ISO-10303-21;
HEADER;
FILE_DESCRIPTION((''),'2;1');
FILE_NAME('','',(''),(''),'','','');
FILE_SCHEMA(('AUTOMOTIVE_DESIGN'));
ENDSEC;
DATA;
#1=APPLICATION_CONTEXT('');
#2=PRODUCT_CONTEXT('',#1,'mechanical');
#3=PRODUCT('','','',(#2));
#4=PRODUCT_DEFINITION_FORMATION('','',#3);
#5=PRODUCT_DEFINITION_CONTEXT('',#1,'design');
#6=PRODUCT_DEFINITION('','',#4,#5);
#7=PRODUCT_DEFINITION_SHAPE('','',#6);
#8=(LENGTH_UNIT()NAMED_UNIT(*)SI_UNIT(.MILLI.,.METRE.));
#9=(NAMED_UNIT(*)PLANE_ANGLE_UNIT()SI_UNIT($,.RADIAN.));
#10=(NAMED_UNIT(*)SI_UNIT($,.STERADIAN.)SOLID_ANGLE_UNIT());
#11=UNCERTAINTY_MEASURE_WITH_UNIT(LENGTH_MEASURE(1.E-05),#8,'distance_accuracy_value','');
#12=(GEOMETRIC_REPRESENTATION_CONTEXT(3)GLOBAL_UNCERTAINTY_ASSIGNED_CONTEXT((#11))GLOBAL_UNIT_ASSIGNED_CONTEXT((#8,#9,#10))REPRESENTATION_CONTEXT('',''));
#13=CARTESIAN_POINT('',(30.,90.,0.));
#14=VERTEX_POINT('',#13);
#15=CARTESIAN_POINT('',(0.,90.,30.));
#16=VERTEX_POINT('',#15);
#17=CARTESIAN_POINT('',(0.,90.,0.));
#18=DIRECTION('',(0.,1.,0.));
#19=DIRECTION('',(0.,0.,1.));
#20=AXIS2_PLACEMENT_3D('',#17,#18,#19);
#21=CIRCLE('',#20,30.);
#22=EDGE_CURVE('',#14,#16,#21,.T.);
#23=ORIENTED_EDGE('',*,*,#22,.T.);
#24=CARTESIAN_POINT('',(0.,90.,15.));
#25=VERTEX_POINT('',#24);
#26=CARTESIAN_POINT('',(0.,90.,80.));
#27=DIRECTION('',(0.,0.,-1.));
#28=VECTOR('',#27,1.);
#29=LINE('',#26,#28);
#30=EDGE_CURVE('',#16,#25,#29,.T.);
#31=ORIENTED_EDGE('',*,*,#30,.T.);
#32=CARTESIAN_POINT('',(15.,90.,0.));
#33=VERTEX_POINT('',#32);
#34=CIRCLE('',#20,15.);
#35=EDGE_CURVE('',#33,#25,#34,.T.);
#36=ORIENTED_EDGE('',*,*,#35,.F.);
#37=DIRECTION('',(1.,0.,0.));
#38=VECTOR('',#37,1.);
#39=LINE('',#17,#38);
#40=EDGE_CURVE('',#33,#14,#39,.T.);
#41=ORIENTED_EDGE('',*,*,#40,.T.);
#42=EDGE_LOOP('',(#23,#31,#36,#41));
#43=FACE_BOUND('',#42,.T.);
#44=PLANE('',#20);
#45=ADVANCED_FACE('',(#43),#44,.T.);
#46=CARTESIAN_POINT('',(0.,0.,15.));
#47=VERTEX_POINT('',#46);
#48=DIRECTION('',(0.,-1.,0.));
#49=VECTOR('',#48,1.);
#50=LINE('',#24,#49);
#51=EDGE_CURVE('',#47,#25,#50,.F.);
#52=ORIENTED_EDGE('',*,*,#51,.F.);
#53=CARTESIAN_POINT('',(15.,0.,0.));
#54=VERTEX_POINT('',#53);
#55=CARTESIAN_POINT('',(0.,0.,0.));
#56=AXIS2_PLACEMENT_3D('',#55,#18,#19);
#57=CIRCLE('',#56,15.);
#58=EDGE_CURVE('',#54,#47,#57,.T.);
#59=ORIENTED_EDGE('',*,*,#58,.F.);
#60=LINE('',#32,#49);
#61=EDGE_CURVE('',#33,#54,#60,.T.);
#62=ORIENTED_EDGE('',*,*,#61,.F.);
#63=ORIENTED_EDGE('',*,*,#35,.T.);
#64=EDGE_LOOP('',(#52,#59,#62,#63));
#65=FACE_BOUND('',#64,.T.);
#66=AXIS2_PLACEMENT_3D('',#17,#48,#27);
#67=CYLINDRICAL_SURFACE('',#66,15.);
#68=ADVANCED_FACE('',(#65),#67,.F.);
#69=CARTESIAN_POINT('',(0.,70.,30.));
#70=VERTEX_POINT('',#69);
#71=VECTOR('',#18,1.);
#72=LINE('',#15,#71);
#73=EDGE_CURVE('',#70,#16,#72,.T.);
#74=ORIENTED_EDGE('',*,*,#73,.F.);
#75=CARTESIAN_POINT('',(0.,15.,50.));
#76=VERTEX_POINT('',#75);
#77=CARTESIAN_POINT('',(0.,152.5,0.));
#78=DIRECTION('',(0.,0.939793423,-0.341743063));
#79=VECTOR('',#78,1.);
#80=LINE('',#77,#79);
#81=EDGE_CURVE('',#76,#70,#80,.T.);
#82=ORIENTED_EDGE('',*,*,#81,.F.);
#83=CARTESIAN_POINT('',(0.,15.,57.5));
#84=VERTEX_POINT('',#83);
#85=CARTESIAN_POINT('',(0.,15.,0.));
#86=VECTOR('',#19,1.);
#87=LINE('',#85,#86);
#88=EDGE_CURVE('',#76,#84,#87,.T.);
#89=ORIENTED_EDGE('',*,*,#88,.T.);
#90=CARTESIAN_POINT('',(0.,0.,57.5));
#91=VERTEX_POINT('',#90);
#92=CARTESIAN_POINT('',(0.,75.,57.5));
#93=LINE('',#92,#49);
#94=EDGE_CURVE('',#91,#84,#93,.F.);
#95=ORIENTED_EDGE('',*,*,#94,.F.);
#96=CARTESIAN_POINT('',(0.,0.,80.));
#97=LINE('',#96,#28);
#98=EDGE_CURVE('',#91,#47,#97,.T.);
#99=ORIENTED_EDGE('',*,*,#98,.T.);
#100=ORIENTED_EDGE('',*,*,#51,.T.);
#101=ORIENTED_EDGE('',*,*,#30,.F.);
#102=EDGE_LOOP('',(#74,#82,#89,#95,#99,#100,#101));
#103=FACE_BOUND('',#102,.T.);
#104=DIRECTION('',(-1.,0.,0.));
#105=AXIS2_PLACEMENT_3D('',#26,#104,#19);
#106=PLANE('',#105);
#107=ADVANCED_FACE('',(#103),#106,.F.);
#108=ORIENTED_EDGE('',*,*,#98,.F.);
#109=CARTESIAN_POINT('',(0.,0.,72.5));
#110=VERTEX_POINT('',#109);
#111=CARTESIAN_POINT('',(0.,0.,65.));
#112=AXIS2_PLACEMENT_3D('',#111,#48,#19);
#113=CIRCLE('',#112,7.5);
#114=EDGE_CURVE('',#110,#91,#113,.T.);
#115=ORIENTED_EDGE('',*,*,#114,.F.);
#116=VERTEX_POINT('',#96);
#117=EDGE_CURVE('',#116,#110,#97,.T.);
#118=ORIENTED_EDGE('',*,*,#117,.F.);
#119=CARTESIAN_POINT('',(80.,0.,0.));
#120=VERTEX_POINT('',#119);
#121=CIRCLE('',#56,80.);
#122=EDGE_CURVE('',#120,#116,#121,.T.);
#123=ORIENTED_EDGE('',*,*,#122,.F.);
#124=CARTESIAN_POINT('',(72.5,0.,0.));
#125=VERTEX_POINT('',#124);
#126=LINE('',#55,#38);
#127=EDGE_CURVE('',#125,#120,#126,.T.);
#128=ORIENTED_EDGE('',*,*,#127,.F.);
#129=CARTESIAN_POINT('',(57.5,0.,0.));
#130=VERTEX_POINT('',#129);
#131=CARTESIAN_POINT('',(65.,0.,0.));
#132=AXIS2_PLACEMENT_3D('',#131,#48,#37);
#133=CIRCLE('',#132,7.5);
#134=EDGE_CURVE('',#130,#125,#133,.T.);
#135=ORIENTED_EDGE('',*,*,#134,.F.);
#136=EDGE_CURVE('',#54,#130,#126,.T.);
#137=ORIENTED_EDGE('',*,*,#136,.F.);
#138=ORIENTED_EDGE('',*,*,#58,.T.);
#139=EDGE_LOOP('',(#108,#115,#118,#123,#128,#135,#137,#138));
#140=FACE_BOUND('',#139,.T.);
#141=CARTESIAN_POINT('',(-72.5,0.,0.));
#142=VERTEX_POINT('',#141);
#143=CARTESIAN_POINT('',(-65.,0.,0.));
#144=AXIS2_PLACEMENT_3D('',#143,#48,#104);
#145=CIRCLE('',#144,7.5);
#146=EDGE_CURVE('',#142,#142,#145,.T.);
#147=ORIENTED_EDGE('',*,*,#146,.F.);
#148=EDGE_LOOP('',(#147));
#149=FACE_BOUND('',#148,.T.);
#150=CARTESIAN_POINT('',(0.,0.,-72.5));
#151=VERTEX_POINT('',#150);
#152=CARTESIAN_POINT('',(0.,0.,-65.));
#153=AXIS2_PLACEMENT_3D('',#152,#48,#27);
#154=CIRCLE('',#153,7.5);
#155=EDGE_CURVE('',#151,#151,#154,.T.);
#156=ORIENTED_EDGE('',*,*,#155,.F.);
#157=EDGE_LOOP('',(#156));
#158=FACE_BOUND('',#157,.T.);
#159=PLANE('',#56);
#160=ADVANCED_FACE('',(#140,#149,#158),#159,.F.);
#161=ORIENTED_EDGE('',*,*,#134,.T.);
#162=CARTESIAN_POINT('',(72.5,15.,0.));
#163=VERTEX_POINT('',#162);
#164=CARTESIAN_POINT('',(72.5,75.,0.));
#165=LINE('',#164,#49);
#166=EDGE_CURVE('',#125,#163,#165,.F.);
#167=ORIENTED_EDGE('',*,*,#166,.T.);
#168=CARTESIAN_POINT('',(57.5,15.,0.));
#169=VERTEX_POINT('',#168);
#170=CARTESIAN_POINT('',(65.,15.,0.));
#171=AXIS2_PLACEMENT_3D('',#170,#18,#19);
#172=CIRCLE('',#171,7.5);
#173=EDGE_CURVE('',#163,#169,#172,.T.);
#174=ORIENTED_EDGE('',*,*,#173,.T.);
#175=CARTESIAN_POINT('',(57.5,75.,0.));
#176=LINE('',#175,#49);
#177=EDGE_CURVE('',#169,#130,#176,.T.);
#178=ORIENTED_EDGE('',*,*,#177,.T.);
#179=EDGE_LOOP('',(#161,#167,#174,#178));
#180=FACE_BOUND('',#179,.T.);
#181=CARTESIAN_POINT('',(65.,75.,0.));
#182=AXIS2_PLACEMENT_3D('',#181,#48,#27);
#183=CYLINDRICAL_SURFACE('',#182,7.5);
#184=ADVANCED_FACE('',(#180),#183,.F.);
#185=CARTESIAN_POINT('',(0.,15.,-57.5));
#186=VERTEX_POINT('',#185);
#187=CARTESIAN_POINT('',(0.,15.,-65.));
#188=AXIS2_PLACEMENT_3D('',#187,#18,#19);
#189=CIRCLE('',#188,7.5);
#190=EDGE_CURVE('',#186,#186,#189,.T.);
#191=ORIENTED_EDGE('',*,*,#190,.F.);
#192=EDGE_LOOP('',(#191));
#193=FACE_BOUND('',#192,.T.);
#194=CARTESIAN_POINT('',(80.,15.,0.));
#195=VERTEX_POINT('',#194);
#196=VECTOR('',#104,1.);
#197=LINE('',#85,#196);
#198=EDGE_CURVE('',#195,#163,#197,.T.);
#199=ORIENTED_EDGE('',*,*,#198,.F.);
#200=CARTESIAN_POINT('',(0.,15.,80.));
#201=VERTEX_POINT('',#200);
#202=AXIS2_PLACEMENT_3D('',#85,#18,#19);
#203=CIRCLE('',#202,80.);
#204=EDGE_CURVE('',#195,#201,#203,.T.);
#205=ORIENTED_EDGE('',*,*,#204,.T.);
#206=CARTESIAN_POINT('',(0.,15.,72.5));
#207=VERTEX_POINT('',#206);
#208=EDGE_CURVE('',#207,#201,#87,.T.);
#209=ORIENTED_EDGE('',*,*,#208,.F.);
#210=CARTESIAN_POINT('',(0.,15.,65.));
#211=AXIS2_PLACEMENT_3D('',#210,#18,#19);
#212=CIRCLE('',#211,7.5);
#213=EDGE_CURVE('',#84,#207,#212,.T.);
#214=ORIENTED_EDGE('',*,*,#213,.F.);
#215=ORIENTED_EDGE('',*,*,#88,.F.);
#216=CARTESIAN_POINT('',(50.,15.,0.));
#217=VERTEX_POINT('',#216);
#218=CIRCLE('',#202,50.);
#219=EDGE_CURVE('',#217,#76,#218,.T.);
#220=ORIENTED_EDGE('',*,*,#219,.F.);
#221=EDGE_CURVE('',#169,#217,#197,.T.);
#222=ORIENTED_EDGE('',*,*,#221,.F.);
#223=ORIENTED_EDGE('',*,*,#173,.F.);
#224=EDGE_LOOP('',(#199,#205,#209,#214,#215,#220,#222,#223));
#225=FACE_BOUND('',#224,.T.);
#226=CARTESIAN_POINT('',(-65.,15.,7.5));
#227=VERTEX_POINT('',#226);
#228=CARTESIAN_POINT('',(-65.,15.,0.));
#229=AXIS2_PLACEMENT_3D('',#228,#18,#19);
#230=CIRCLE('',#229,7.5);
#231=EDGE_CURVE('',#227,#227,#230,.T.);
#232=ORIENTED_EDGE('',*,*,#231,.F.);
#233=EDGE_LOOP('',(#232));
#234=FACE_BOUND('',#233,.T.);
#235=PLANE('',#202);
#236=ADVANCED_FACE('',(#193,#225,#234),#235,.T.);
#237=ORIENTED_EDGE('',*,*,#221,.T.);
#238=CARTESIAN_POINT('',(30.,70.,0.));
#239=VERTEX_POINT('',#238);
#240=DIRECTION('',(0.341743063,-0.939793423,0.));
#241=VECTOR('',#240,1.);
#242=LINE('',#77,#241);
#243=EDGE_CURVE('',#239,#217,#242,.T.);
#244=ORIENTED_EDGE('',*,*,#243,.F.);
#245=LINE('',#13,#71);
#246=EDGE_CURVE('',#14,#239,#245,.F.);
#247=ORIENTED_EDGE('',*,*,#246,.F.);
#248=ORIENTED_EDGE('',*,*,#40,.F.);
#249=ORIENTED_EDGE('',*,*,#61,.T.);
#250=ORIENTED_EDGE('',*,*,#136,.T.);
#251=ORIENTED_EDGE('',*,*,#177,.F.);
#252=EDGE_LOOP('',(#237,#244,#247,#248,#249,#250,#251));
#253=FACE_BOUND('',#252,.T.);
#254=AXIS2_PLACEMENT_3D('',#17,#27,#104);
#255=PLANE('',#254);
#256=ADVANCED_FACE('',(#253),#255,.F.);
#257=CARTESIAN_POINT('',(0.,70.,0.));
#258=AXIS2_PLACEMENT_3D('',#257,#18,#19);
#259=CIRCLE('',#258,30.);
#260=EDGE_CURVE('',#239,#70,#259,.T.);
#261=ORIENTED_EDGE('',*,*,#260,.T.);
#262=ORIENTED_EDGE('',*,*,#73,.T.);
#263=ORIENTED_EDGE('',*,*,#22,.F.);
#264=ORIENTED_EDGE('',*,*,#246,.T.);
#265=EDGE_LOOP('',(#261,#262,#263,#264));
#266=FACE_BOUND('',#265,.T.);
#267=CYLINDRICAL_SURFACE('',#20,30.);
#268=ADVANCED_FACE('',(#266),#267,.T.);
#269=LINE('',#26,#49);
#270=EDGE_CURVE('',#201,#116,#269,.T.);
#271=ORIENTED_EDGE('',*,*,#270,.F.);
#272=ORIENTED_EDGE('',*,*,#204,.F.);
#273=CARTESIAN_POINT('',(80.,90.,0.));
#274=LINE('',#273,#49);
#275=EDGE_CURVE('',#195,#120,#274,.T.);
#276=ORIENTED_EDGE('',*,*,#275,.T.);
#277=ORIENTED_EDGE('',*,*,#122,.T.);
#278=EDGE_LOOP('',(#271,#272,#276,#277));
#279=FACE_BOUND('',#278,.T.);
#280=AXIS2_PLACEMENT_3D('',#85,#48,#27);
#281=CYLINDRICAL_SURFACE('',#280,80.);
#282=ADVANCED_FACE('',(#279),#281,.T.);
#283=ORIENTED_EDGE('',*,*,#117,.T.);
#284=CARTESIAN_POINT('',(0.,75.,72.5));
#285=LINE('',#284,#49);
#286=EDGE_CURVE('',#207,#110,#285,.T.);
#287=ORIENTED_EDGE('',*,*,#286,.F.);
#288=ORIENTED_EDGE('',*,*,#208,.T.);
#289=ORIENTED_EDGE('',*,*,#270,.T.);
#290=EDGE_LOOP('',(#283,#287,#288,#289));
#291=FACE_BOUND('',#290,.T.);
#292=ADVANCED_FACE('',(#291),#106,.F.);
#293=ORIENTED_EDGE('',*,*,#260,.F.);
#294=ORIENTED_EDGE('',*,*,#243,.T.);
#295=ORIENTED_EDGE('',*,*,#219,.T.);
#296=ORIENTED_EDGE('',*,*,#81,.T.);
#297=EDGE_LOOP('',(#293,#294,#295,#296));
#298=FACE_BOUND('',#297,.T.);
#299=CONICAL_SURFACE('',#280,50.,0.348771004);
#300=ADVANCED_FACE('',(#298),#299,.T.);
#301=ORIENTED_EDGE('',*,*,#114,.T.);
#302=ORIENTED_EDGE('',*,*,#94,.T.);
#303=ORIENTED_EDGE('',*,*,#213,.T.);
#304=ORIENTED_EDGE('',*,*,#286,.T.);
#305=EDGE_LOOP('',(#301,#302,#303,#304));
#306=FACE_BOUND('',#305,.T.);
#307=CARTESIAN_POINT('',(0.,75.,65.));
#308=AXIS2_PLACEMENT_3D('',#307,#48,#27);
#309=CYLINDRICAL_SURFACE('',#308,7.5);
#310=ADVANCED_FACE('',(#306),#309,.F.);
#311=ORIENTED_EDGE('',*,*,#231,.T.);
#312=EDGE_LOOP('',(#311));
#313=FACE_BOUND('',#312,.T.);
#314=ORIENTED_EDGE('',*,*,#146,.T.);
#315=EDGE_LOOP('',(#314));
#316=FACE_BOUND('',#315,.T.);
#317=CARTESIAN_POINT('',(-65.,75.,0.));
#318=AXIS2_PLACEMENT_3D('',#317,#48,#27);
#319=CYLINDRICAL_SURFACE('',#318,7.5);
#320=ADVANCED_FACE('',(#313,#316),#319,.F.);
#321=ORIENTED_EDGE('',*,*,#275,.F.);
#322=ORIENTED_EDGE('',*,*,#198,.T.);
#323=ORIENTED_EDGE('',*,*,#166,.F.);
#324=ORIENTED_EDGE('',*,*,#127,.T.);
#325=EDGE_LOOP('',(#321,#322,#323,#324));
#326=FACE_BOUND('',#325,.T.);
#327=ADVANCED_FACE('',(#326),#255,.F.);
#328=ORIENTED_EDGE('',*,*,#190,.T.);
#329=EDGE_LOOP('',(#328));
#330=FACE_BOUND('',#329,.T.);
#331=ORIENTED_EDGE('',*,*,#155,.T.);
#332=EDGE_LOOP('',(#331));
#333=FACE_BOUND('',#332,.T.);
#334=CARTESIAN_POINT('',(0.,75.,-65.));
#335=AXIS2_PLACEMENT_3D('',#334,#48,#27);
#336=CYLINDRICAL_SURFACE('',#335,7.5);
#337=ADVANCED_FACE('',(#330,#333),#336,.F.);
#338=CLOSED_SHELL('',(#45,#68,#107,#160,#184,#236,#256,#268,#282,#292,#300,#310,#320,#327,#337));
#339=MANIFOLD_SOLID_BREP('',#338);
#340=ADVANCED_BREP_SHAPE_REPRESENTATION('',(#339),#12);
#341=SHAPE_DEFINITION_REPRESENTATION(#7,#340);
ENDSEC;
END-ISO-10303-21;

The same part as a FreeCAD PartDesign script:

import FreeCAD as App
import Part
import Sketcher

V = App.Vector
Q = App.Units.Quantity


def add_polygon(sketch, points):
    """Adds a closed chain of lines whose ends are joined by coincident constraints."""
    first, n = sketch.GeometryCount, len(points)
    for a, b in zip(points, points[1:] + points[:1]):
        sketch.addGeometry(Part.LineSegment(App.Vector(*a, 0), App.Vector(*b, 0)), False)
    for i in range(n):
        sketch.addConstraint(Sketcher.Constraint("Coincident", first + i, 2, first + (i + 1) % n, 1))

doc = App.newDocument("Part")
params = doc.addObject("Spreadsheet::Sheet", "Params")
for row, (alias, value) in enumerate([
    ("sketch1_diameter", "160 mm"),
    ("pad1_length", "15 mm"),
    ("sketch2_diameter", "100 mm"),
    ("pad2_length", "75 mm"),
    ("sketch3_diameter", "30 mm"),
    ("sketch4_width", "20 mm"),
    ("sketch4_width2", "75 mm"),
    ("groove_angle", "360 deg"),
    ("sketch5_diameter", "15 mm"),
    ("pocket2_length", "75 mm"),
    ("sketch6_width", "80 mm"),
], start=1):
    params.set(f"A{row}", alias)
    params.set(f"B{row}", "=" + value)
    params.setAlias(f"B{row}", alias)

body = doc.addObject("PartDesign::Body", "Body")

# Sketch on XZ plane
sketch1 = doc.addObject("Sketcher::SketchObject", "Sketch")
body.addObject(sketch1)
sketch1.AttachmentSupport = (doc.XZ_Plane, [""])
sketch1.MapMode = "FlatFace"
sketch1.addGeometry(Part.Circle(V(0, 0, 0), V(0, 0, 1), 80), False)
sketch1.addConstraint(Sketcher.Constraint("Coincident", 0, 3, -1, 1))
sketch1.addConstraint(Sketcher.Constraint("Diameter", 0, Q("160 mm")))
sketch1.setExpression("Constraints[1]", "Params.sketch1_diameter")
pad1 = doc.addObject("PartDesign::Pad", "Pad")
body.addObject(pad1)
pad1.Profile = sketch1
pad1.setExpression("Length", "Params.pad1_length")
pad1.Reversed = True

# Sketch on XZ plane
sketch2 = doc.addObject("Sketcher::SketchObject", "Sketch001")
body.addObject(sketch2)
sketch2.AttachmentSupport = (doc.XZ_Plane, [""])
sketch2.MapMode = "FlatFace"
sketch2.AttachmentOffset = App.Placement(V(0, 0, -15), App.Rotation())
sketch2.addGeometry(Part.Circle(V(0, 0, 0), V(0, 0, 1), 50), False)
sketch2.addConstraint(Sketcher.Constraint("Coincident", 0, 3, -1, 1))
sketch2.addConstraint(Sketcher.Constraint("Diameter", 0, Q("100 mm")))
sketch2.setExpression("Constraints[1]", "Params.sketch2_diameter")
pad2 = doc.addObject("PartDesign::Pad", "Pad001")
body.addObject(pad2)
pad2.Profile = sketch2
pad2.setExpression("Length", "Params.pad2_length")
pad2.Reversed = True

# Sketch on XZ plane
sketch3 = doc.addObject("Sketcher::SketchObject", "Sketch002")
body.addObject(sketch3)
sketch3.AttachmentSupport = (doc.XZ_Plane, [""])
sketch3.MapMode = "FlatFace"
sketch3.addGeometry(Part.Circle(V(0, 0, 0), V(0, 0, 1), 15), False)
sketch3.addConstraint(Sketcher.Constraint("Coincident", 0, 3, -1, 1))
sketch3.addConstraint(Sketcher.Constraint("Diameter", 0, Q("30 mm")))
sketch3.setExpression("Constraints[1]", "Params.sketch3_diameter")
pocket1 = doc.addObject("PartDesign::Pocket", "Pocket")
body.addObject(pocket1)
pocket1.Profile = sketch3
pocket1.Type = "ThroughAll"

# Sketch on YZ plane
sketch4 = doc.addObject("Sketcher::SketchObject", "Sketch003")
body.addObject(sketch4)
sketch4.AttachmentSupport = (doc.YZ_Plane, [""])
sketch4.MapMode = "FlatFace"
add_polygon(sketch4, [(70, 30), (90, 30), (90, 50), (15, 50)])  # lines 0-3
sketch4.addConstraint(Sketcher.Constraint("Horizontal", 0))
sketch4.addConstraint(Sketcher.Constraint("Vertical", 1))
sketch4.addConstraint(Sketcher.Constraint("Horizontal", 2))
sketch4.addConstraint(Sketcher.Constraint("Equal", 0, 1))
sketch4.addConstraint(Sketcher.Constraint("DistanceX", 0, 1, 0, 2, Q("20 mm")))
sketch4.addConstraint(Sketcher.Constraint("DistanceX", 2, 2, 2, 1, Q("75 mm")))
sketch4.addConstraint(Sketcher.Constraint("DistanceX", -1, 1, 0, 2, Q("90 mm")))
sketch4.addConstraint(Sketcher.Constraint("DistanceY", -1, 1, 0, 2, Q("30 mm")))
sketch4.setExpression("Constraints[8]", "Params.sketch4_width")
sketch4.setExpression("Constraints[9]", "Params.sketch4_width2")
groove = doc.addObject("PartDesign::Groove", "Groove")
body.addObject(groove)
groove.Profile = sketch4
groove.ReferenceAxis = (sketch4, ["H_Axis"])
groove.setExpression("Angle", "Params.groove_angle")

# Sketch on XZ plane
sketch5 = doc.addObject("Sketcher::SketchObject", "Sketch004")
body.addObject(sketch5)
sketch5.AttachmentSupport = (doc.XZ_Plane, [""])
sketch5.MapMode = "FlatFace"
sketch5.addGeometry(Part.Circle(V(0, -65, 0), V(0, 0, 1), 7.5), False)
sketch5.addConstraint(Sketcher.Constraint("PointOnObject", 0, 3, -2))
sketch5.addConstraint(Sketcher.Constraint("Diameter", 0, Q("15 mm")))
sketch5.addConstraint(Sketcher.Constraint("DistanceY", 0, 3, -1, 1, Q("65 mm")))
sketch5.setExpression("Constraints[1]", "Params.sketch5_diameter")
pocket2 = doc.addObject("PartDesign::Pocket", "Pocket001")
body.addObject(pocket2)
pocket2.Profile = sketch5
pocket2.setExpression("Length", "Params.pocket2_length")
doc.recompute()

polarpattern = doc.addObject("PartDesign::PolarPattern", "PolarPattern")
body.addObject(polarpattern)
polarpattern.Originals = [pocket2]
polarpattern.Axis = (doc.Y_Axis, [""])
polarpattern.Angle = 360
polarpattern.Occurrences = 4
body.Tip = polarpattern

# Sketch on XZ plane
sketch6 = doc.addObject("Sketcher::SketchObject", "Sketch005")
body.addObject(sketch6)
sketch6.AttachmentSupport = (doc.XZ_Plane, [""])
sketch6.MapMode = "FlatFace"
add_polygon(sketch6, [(0, 80), (0, 0), (80, 0), (80, 86.210661)])  # lines 0-3
sketch6.addConstraint(Sketcher.Constraint("Vertical", 0))
sketch6.addConstraint(Sketcher.Constraint("Horizontal", 1))
sketch6.addConstraint(Sketcher.Constraint("Vertical", 2))
sketch6.addConstraint(Sketcher.Constraint("Coincident", 0, 2, -1, 1))
sketch6.addConstraint(Sketcher.Constraint("Equal", 1, 0))
sketch6.addConstraint(Sketcher.Constraint("DistanceX", 1, 1, 1, 2, Q("80 mm")))
sketch6.addConstraint(Sketcher.Constraint("DistanceY", 2, 1, 2, 2, Q("86.210661 mm")))
sketch6.setExpression("Constraints[9]", "Params.sketch6_width")
pocket3 = doc.addObject("PartDesign::Pocket", "Pocket002")
body.addObject(pocket3)
pocket3.Profile = sketch6
pocket3.Type = "ThroughAll"

doc.recompute()
